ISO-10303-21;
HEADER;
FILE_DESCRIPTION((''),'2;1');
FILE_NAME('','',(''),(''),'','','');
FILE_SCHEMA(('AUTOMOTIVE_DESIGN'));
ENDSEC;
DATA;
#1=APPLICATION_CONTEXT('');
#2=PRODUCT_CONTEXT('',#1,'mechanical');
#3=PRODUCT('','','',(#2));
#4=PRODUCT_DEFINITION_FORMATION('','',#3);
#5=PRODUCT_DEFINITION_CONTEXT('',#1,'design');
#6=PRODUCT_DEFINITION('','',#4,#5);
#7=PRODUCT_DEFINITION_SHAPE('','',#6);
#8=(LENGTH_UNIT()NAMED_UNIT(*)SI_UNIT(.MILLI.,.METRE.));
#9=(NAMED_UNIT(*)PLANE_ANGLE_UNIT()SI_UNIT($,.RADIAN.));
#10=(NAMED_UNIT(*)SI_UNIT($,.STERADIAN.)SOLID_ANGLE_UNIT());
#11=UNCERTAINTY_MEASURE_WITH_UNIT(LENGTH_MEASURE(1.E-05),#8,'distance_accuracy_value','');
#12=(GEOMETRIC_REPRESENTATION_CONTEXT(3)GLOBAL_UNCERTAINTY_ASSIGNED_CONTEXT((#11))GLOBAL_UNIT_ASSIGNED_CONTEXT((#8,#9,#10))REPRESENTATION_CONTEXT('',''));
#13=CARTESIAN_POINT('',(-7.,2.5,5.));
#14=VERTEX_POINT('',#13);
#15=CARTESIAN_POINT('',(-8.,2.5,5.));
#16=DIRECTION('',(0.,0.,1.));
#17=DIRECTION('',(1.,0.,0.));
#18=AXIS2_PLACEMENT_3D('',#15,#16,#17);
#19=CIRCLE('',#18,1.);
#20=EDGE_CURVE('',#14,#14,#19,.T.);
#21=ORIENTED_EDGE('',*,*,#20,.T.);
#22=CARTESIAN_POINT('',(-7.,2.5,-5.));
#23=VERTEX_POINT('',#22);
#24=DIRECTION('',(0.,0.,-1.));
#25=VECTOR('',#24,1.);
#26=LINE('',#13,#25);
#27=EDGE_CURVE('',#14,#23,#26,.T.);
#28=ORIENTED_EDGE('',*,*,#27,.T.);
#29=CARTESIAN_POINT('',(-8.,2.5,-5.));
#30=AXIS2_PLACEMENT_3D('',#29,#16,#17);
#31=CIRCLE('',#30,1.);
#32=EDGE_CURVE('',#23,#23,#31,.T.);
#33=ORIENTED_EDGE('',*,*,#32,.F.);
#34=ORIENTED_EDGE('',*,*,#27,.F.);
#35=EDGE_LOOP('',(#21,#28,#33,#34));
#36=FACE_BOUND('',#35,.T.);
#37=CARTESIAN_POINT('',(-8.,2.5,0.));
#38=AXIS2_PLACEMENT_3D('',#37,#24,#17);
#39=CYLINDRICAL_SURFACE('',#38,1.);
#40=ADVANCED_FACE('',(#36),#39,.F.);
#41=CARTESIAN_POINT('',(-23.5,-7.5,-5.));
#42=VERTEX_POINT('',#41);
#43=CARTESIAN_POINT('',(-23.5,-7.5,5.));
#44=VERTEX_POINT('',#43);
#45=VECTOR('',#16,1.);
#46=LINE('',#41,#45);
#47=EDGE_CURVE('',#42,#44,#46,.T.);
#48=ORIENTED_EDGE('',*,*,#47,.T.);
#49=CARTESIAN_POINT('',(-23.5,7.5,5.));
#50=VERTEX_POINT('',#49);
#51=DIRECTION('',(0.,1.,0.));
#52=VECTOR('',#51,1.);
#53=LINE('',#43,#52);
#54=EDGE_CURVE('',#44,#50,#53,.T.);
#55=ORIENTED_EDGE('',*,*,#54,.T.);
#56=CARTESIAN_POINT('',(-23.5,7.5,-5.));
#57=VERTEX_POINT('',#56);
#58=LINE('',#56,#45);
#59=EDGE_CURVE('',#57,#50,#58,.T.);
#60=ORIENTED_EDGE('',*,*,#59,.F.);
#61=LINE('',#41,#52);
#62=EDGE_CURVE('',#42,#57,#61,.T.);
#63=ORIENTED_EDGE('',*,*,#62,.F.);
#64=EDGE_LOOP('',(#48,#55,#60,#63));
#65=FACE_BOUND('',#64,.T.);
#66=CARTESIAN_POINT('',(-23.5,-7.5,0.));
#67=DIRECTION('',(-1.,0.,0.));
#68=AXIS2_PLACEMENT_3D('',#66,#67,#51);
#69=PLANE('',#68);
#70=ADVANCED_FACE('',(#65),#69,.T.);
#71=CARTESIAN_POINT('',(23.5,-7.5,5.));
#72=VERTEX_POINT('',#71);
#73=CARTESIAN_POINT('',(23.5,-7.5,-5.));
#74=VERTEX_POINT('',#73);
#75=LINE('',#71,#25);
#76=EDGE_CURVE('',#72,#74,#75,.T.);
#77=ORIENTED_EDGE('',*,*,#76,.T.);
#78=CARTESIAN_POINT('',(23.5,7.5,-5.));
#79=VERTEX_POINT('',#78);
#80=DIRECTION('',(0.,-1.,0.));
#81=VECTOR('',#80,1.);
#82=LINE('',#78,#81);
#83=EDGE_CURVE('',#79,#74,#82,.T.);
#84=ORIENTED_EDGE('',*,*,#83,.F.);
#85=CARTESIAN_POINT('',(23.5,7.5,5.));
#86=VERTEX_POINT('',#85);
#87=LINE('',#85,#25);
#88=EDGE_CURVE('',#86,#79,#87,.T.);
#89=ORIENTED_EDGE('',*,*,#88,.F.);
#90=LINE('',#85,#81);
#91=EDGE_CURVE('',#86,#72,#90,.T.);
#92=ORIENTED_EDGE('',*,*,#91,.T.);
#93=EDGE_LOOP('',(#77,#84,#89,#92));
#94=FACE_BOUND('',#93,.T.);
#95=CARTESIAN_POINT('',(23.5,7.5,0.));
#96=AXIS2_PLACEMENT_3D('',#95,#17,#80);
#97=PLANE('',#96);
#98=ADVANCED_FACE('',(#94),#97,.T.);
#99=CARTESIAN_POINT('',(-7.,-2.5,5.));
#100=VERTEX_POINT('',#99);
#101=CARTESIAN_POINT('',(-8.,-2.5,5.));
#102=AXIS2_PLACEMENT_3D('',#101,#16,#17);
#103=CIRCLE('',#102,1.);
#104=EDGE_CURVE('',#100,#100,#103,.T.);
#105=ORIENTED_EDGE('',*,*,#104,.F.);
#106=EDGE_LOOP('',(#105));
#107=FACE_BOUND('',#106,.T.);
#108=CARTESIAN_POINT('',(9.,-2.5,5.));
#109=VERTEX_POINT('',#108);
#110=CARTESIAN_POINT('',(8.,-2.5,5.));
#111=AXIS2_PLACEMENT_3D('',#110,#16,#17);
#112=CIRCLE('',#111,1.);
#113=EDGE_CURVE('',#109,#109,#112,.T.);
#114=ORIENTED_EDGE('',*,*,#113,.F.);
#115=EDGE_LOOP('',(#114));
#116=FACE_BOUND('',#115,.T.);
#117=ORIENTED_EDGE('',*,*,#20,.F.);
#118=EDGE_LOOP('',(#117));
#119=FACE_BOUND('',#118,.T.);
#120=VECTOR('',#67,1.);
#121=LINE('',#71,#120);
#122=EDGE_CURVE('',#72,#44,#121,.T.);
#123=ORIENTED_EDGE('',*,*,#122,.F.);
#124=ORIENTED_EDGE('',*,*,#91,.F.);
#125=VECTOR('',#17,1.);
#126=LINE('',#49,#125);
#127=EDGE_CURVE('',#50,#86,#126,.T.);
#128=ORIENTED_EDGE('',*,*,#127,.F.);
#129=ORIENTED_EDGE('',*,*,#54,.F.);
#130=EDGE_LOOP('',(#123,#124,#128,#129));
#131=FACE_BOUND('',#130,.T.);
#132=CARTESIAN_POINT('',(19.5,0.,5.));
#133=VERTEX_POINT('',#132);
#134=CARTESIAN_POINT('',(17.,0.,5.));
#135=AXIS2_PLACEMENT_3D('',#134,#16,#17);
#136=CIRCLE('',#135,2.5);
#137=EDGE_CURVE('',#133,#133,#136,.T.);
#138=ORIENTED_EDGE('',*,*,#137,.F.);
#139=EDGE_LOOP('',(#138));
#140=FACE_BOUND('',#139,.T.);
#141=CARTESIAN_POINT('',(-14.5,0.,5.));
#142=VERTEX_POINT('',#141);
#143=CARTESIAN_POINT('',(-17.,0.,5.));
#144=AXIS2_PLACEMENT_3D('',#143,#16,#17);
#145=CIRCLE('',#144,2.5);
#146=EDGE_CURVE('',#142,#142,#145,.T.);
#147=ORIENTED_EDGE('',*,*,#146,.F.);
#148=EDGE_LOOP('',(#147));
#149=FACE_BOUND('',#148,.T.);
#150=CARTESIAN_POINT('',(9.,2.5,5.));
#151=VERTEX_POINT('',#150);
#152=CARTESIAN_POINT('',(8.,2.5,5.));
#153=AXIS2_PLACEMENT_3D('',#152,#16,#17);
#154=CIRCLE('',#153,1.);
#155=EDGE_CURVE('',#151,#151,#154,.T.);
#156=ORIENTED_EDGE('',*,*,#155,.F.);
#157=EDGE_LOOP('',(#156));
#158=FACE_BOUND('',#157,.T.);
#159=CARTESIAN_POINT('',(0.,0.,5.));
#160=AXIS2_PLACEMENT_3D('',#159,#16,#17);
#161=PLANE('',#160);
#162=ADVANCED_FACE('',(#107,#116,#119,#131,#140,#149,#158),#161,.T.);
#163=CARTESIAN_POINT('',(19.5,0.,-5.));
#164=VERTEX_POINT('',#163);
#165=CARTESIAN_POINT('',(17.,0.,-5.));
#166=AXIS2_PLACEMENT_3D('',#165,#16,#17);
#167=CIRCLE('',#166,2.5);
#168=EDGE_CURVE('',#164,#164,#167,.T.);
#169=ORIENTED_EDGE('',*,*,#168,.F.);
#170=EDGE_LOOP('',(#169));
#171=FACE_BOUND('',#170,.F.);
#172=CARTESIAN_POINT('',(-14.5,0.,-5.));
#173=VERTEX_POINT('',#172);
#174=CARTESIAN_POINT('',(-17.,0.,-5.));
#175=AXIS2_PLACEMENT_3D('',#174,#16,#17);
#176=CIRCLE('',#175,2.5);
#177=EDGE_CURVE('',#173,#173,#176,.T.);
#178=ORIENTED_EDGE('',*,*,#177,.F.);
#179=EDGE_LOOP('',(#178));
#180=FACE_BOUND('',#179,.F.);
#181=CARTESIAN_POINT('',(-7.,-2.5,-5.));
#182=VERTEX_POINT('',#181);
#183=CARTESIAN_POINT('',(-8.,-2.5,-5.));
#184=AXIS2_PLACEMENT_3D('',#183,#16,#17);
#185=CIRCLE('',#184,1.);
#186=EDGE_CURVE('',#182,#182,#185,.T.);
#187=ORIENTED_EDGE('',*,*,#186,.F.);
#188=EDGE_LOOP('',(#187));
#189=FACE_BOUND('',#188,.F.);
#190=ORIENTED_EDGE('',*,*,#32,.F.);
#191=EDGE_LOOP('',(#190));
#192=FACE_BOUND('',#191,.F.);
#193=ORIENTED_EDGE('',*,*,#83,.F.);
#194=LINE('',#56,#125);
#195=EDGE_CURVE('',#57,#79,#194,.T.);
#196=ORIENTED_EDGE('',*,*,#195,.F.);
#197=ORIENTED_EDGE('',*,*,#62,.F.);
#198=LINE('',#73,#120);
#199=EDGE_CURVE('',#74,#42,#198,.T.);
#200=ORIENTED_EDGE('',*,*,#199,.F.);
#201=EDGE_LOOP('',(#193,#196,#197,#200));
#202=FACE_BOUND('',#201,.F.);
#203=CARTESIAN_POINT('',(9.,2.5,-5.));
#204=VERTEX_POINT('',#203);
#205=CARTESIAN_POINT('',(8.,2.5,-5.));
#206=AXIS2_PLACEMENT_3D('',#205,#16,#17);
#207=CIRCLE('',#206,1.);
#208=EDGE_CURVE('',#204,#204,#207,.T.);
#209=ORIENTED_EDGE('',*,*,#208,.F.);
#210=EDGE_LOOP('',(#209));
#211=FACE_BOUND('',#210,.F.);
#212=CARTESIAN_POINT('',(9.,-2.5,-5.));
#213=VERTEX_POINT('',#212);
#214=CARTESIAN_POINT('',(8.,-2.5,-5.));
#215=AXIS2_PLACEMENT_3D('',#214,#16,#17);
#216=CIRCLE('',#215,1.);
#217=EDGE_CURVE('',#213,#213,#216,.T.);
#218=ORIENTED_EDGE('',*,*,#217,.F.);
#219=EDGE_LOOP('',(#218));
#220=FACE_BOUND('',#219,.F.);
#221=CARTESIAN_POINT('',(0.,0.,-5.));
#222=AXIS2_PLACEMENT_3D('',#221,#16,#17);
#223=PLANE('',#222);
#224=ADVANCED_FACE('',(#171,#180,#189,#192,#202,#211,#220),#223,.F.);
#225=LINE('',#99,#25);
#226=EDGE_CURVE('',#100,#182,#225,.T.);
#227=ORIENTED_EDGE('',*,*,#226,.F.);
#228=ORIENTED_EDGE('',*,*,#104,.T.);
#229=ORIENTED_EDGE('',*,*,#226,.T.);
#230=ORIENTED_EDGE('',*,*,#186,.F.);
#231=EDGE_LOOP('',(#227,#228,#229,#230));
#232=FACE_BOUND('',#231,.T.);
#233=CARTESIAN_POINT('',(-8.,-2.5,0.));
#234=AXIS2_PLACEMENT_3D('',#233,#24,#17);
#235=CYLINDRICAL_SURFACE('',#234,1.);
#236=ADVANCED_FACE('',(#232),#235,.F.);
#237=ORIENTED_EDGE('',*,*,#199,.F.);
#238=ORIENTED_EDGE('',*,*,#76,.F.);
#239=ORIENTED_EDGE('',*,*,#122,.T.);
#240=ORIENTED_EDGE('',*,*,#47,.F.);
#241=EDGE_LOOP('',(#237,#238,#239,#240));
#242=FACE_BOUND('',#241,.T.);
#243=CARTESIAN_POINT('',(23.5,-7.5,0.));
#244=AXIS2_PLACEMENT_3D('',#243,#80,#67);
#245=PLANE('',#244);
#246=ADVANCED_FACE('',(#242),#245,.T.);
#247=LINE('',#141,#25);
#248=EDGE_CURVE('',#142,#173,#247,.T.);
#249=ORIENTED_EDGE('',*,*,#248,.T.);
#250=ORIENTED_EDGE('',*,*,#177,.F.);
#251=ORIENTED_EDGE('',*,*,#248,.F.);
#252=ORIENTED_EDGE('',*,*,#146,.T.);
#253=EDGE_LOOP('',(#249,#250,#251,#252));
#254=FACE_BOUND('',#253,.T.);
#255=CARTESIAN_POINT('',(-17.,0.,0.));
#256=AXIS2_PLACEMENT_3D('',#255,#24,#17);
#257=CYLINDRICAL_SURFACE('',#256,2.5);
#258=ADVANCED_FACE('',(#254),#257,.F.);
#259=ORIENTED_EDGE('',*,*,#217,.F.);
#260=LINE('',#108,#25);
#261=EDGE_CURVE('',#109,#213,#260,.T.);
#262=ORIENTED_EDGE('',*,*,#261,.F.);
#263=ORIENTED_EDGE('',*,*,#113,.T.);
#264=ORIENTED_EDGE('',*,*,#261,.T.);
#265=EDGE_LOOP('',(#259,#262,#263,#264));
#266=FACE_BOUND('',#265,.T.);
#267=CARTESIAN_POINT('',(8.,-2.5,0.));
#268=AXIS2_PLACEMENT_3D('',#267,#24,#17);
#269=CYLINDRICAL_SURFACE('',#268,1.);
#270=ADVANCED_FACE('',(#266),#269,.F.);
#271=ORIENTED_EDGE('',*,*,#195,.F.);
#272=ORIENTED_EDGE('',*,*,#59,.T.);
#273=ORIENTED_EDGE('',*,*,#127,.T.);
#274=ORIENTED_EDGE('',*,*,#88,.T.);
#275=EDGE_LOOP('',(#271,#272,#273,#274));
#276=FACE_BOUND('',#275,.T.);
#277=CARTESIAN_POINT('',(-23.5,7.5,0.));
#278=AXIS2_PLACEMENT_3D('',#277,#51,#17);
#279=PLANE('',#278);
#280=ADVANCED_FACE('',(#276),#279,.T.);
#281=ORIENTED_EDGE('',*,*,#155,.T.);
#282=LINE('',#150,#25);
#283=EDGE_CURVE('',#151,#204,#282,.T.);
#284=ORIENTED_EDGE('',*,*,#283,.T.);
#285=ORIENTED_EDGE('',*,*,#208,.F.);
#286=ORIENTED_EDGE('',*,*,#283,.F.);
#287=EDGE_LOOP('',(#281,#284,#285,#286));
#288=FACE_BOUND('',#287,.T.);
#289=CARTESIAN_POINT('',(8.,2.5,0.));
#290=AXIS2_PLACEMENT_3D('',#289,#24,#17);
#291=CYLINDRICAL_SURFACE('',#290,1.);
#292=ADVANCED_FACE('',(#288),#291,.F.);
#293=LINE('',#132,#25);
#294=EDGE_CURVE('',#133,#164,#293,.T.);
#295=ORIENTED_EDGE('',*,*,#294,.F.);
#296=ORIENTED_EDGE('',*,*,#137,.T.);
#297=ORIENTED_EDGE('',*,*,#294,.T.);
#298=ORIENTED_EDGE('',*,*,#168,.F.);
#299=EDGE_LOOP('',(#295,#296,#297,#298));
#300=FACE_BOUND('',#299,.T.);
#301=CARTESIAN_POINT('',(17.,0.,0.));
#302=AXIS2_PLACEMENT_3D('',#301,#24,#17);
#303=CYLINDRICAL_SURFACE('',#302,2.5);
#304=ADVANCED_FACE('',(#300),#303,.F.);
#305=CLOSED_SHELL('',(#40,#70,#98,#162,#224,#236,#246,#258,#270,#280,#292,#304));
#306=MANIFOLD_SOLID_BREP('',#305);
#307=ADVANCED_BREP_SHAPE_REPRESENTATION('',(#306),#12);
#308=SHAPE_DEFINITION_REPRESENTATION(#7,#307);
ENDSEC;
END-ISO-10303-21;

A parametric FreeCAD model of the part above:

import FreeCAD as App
import Part
import Sketcher

V = App.Vector
Q = App.Units.Quantity


def add_polygon(sketch, points):
    """Adds a closed chain of lines whose ends are joined by coincident constraints."""
    first, n = sketch.GeometryCount, len(points)
    for a, b in zip(points, points[1:] + points[:1]):
        sketch.addGeometry(Part.LineSegment(App.Vector(*a, 0), App.Vector(*b, 0)), False)
    for i in range(n):
        sketch.addConstraint(Sketcher.Constraint("Coincident", first + i, 2, first + (i + 1) % n, 1))

doc = App.newDocument("Part")
body = doc.addObject("PartDesign::Body", "Body")

# Sketch on XY plane
sketch1 = body.newObject("Sketcher::SketchObject", "Sketch")
sketch1.AttachmentSupport = (doc.getObject("XY_Plane"), [""])
sketch1.MapMode = "FlatFace"
add_polygon(sketch1, [(23.5, 7.5), (-23.5, 7.5), (-23.5, -7.5), (23.5, -7.5)])  # lines 0-3
sketch1.addGeometry(Part.Circle(V(-8, -2.5, 0), V(0, 0, 1), 1), False)  # 4
sketch1.addGeometry(Part.Circle(V(8, -2.5, 0), V(0, 0, 1), 1), False)  # 5
sketch1.addGeometry(Part.Circle(V(-17, 0, 0), V(0, 0, 1), 2.5), False)  # 6
sketch1.addGeometry(Part.Circle(V(-8, 2.5, 0), V(0, 0, 1), 1), False)  # 7
sketch1.addGeometry(Part.Circle(V(8, 2.5, 0), V(0, 0, 1), 1), False)  # 8
sketch1.addGeometry(Part.Circle(V(17, 0, 0), V(0, 0, 1), 2.5), False)  # 9
sketch1.addConstraint([
    Sketcher.Constraint("Horizontal", 0),
    Sketcher.Constraint("Vertical", 1),
    Sketcher.Constraint("Horizontal", 2),
    Sketcher.Constraint("Vertical", 3),
    Sketcher.Constraint("Equal", 4, 5),
    Sketcher.Constraint("Equal", 5, 7),
    Sketcher.Constraint("Equal", 7, 8),
    Sketcher.Constraint("Equal", 6, 9),
    Sketcher.Constraint("Symmetric", 5, 3, 7, 3, -1, 1),
    Sketcher.Constraint("Symmetric", 4, 3, 8, 3, -1, 1),
    Sketcher.Constraint("Symmetric", 6, 3, 9, 3, -1, 1),
    Sketcher.Constraint("Symmetric", 0, 2, 2, 2, -1, 1),
    Sketcher.Constraint("Symmetric", 4, 3, 5, 3, -2),
    Sketcher.Constraint("PointOnObject", 6, 3, -1),
    Sketcher.Constraint("Diameter", 4, Q("2 mm")),
    Sketcher.Constraint("Diameter", 6, Q("5 mm")),
    Sketcher.Constraint("DistanceX", 0, 2, 0, 1, Q("47 mm")),
    Sketcher.Constraint("DistanceY", 1, 2, 1, 1, Q("15 mm")),
    Sketcher.Constraint("DistanceX", 4, 3, -1, 1, Q("8 mm")),
    Sketcher.Constraint("DistanceX", 6, 3, -1, 1, Q("17 mm")),
    Sketcher.Constraint("DistanceY", 4, 3, 7, 3, Q("5 mm")),
])
pad1 = body.newObject("PartDesign::Pad", "Pad")
pad1.Profile = sketch1
pad1.Length = 10
pad1.Midplane = True

doc.recompute()
